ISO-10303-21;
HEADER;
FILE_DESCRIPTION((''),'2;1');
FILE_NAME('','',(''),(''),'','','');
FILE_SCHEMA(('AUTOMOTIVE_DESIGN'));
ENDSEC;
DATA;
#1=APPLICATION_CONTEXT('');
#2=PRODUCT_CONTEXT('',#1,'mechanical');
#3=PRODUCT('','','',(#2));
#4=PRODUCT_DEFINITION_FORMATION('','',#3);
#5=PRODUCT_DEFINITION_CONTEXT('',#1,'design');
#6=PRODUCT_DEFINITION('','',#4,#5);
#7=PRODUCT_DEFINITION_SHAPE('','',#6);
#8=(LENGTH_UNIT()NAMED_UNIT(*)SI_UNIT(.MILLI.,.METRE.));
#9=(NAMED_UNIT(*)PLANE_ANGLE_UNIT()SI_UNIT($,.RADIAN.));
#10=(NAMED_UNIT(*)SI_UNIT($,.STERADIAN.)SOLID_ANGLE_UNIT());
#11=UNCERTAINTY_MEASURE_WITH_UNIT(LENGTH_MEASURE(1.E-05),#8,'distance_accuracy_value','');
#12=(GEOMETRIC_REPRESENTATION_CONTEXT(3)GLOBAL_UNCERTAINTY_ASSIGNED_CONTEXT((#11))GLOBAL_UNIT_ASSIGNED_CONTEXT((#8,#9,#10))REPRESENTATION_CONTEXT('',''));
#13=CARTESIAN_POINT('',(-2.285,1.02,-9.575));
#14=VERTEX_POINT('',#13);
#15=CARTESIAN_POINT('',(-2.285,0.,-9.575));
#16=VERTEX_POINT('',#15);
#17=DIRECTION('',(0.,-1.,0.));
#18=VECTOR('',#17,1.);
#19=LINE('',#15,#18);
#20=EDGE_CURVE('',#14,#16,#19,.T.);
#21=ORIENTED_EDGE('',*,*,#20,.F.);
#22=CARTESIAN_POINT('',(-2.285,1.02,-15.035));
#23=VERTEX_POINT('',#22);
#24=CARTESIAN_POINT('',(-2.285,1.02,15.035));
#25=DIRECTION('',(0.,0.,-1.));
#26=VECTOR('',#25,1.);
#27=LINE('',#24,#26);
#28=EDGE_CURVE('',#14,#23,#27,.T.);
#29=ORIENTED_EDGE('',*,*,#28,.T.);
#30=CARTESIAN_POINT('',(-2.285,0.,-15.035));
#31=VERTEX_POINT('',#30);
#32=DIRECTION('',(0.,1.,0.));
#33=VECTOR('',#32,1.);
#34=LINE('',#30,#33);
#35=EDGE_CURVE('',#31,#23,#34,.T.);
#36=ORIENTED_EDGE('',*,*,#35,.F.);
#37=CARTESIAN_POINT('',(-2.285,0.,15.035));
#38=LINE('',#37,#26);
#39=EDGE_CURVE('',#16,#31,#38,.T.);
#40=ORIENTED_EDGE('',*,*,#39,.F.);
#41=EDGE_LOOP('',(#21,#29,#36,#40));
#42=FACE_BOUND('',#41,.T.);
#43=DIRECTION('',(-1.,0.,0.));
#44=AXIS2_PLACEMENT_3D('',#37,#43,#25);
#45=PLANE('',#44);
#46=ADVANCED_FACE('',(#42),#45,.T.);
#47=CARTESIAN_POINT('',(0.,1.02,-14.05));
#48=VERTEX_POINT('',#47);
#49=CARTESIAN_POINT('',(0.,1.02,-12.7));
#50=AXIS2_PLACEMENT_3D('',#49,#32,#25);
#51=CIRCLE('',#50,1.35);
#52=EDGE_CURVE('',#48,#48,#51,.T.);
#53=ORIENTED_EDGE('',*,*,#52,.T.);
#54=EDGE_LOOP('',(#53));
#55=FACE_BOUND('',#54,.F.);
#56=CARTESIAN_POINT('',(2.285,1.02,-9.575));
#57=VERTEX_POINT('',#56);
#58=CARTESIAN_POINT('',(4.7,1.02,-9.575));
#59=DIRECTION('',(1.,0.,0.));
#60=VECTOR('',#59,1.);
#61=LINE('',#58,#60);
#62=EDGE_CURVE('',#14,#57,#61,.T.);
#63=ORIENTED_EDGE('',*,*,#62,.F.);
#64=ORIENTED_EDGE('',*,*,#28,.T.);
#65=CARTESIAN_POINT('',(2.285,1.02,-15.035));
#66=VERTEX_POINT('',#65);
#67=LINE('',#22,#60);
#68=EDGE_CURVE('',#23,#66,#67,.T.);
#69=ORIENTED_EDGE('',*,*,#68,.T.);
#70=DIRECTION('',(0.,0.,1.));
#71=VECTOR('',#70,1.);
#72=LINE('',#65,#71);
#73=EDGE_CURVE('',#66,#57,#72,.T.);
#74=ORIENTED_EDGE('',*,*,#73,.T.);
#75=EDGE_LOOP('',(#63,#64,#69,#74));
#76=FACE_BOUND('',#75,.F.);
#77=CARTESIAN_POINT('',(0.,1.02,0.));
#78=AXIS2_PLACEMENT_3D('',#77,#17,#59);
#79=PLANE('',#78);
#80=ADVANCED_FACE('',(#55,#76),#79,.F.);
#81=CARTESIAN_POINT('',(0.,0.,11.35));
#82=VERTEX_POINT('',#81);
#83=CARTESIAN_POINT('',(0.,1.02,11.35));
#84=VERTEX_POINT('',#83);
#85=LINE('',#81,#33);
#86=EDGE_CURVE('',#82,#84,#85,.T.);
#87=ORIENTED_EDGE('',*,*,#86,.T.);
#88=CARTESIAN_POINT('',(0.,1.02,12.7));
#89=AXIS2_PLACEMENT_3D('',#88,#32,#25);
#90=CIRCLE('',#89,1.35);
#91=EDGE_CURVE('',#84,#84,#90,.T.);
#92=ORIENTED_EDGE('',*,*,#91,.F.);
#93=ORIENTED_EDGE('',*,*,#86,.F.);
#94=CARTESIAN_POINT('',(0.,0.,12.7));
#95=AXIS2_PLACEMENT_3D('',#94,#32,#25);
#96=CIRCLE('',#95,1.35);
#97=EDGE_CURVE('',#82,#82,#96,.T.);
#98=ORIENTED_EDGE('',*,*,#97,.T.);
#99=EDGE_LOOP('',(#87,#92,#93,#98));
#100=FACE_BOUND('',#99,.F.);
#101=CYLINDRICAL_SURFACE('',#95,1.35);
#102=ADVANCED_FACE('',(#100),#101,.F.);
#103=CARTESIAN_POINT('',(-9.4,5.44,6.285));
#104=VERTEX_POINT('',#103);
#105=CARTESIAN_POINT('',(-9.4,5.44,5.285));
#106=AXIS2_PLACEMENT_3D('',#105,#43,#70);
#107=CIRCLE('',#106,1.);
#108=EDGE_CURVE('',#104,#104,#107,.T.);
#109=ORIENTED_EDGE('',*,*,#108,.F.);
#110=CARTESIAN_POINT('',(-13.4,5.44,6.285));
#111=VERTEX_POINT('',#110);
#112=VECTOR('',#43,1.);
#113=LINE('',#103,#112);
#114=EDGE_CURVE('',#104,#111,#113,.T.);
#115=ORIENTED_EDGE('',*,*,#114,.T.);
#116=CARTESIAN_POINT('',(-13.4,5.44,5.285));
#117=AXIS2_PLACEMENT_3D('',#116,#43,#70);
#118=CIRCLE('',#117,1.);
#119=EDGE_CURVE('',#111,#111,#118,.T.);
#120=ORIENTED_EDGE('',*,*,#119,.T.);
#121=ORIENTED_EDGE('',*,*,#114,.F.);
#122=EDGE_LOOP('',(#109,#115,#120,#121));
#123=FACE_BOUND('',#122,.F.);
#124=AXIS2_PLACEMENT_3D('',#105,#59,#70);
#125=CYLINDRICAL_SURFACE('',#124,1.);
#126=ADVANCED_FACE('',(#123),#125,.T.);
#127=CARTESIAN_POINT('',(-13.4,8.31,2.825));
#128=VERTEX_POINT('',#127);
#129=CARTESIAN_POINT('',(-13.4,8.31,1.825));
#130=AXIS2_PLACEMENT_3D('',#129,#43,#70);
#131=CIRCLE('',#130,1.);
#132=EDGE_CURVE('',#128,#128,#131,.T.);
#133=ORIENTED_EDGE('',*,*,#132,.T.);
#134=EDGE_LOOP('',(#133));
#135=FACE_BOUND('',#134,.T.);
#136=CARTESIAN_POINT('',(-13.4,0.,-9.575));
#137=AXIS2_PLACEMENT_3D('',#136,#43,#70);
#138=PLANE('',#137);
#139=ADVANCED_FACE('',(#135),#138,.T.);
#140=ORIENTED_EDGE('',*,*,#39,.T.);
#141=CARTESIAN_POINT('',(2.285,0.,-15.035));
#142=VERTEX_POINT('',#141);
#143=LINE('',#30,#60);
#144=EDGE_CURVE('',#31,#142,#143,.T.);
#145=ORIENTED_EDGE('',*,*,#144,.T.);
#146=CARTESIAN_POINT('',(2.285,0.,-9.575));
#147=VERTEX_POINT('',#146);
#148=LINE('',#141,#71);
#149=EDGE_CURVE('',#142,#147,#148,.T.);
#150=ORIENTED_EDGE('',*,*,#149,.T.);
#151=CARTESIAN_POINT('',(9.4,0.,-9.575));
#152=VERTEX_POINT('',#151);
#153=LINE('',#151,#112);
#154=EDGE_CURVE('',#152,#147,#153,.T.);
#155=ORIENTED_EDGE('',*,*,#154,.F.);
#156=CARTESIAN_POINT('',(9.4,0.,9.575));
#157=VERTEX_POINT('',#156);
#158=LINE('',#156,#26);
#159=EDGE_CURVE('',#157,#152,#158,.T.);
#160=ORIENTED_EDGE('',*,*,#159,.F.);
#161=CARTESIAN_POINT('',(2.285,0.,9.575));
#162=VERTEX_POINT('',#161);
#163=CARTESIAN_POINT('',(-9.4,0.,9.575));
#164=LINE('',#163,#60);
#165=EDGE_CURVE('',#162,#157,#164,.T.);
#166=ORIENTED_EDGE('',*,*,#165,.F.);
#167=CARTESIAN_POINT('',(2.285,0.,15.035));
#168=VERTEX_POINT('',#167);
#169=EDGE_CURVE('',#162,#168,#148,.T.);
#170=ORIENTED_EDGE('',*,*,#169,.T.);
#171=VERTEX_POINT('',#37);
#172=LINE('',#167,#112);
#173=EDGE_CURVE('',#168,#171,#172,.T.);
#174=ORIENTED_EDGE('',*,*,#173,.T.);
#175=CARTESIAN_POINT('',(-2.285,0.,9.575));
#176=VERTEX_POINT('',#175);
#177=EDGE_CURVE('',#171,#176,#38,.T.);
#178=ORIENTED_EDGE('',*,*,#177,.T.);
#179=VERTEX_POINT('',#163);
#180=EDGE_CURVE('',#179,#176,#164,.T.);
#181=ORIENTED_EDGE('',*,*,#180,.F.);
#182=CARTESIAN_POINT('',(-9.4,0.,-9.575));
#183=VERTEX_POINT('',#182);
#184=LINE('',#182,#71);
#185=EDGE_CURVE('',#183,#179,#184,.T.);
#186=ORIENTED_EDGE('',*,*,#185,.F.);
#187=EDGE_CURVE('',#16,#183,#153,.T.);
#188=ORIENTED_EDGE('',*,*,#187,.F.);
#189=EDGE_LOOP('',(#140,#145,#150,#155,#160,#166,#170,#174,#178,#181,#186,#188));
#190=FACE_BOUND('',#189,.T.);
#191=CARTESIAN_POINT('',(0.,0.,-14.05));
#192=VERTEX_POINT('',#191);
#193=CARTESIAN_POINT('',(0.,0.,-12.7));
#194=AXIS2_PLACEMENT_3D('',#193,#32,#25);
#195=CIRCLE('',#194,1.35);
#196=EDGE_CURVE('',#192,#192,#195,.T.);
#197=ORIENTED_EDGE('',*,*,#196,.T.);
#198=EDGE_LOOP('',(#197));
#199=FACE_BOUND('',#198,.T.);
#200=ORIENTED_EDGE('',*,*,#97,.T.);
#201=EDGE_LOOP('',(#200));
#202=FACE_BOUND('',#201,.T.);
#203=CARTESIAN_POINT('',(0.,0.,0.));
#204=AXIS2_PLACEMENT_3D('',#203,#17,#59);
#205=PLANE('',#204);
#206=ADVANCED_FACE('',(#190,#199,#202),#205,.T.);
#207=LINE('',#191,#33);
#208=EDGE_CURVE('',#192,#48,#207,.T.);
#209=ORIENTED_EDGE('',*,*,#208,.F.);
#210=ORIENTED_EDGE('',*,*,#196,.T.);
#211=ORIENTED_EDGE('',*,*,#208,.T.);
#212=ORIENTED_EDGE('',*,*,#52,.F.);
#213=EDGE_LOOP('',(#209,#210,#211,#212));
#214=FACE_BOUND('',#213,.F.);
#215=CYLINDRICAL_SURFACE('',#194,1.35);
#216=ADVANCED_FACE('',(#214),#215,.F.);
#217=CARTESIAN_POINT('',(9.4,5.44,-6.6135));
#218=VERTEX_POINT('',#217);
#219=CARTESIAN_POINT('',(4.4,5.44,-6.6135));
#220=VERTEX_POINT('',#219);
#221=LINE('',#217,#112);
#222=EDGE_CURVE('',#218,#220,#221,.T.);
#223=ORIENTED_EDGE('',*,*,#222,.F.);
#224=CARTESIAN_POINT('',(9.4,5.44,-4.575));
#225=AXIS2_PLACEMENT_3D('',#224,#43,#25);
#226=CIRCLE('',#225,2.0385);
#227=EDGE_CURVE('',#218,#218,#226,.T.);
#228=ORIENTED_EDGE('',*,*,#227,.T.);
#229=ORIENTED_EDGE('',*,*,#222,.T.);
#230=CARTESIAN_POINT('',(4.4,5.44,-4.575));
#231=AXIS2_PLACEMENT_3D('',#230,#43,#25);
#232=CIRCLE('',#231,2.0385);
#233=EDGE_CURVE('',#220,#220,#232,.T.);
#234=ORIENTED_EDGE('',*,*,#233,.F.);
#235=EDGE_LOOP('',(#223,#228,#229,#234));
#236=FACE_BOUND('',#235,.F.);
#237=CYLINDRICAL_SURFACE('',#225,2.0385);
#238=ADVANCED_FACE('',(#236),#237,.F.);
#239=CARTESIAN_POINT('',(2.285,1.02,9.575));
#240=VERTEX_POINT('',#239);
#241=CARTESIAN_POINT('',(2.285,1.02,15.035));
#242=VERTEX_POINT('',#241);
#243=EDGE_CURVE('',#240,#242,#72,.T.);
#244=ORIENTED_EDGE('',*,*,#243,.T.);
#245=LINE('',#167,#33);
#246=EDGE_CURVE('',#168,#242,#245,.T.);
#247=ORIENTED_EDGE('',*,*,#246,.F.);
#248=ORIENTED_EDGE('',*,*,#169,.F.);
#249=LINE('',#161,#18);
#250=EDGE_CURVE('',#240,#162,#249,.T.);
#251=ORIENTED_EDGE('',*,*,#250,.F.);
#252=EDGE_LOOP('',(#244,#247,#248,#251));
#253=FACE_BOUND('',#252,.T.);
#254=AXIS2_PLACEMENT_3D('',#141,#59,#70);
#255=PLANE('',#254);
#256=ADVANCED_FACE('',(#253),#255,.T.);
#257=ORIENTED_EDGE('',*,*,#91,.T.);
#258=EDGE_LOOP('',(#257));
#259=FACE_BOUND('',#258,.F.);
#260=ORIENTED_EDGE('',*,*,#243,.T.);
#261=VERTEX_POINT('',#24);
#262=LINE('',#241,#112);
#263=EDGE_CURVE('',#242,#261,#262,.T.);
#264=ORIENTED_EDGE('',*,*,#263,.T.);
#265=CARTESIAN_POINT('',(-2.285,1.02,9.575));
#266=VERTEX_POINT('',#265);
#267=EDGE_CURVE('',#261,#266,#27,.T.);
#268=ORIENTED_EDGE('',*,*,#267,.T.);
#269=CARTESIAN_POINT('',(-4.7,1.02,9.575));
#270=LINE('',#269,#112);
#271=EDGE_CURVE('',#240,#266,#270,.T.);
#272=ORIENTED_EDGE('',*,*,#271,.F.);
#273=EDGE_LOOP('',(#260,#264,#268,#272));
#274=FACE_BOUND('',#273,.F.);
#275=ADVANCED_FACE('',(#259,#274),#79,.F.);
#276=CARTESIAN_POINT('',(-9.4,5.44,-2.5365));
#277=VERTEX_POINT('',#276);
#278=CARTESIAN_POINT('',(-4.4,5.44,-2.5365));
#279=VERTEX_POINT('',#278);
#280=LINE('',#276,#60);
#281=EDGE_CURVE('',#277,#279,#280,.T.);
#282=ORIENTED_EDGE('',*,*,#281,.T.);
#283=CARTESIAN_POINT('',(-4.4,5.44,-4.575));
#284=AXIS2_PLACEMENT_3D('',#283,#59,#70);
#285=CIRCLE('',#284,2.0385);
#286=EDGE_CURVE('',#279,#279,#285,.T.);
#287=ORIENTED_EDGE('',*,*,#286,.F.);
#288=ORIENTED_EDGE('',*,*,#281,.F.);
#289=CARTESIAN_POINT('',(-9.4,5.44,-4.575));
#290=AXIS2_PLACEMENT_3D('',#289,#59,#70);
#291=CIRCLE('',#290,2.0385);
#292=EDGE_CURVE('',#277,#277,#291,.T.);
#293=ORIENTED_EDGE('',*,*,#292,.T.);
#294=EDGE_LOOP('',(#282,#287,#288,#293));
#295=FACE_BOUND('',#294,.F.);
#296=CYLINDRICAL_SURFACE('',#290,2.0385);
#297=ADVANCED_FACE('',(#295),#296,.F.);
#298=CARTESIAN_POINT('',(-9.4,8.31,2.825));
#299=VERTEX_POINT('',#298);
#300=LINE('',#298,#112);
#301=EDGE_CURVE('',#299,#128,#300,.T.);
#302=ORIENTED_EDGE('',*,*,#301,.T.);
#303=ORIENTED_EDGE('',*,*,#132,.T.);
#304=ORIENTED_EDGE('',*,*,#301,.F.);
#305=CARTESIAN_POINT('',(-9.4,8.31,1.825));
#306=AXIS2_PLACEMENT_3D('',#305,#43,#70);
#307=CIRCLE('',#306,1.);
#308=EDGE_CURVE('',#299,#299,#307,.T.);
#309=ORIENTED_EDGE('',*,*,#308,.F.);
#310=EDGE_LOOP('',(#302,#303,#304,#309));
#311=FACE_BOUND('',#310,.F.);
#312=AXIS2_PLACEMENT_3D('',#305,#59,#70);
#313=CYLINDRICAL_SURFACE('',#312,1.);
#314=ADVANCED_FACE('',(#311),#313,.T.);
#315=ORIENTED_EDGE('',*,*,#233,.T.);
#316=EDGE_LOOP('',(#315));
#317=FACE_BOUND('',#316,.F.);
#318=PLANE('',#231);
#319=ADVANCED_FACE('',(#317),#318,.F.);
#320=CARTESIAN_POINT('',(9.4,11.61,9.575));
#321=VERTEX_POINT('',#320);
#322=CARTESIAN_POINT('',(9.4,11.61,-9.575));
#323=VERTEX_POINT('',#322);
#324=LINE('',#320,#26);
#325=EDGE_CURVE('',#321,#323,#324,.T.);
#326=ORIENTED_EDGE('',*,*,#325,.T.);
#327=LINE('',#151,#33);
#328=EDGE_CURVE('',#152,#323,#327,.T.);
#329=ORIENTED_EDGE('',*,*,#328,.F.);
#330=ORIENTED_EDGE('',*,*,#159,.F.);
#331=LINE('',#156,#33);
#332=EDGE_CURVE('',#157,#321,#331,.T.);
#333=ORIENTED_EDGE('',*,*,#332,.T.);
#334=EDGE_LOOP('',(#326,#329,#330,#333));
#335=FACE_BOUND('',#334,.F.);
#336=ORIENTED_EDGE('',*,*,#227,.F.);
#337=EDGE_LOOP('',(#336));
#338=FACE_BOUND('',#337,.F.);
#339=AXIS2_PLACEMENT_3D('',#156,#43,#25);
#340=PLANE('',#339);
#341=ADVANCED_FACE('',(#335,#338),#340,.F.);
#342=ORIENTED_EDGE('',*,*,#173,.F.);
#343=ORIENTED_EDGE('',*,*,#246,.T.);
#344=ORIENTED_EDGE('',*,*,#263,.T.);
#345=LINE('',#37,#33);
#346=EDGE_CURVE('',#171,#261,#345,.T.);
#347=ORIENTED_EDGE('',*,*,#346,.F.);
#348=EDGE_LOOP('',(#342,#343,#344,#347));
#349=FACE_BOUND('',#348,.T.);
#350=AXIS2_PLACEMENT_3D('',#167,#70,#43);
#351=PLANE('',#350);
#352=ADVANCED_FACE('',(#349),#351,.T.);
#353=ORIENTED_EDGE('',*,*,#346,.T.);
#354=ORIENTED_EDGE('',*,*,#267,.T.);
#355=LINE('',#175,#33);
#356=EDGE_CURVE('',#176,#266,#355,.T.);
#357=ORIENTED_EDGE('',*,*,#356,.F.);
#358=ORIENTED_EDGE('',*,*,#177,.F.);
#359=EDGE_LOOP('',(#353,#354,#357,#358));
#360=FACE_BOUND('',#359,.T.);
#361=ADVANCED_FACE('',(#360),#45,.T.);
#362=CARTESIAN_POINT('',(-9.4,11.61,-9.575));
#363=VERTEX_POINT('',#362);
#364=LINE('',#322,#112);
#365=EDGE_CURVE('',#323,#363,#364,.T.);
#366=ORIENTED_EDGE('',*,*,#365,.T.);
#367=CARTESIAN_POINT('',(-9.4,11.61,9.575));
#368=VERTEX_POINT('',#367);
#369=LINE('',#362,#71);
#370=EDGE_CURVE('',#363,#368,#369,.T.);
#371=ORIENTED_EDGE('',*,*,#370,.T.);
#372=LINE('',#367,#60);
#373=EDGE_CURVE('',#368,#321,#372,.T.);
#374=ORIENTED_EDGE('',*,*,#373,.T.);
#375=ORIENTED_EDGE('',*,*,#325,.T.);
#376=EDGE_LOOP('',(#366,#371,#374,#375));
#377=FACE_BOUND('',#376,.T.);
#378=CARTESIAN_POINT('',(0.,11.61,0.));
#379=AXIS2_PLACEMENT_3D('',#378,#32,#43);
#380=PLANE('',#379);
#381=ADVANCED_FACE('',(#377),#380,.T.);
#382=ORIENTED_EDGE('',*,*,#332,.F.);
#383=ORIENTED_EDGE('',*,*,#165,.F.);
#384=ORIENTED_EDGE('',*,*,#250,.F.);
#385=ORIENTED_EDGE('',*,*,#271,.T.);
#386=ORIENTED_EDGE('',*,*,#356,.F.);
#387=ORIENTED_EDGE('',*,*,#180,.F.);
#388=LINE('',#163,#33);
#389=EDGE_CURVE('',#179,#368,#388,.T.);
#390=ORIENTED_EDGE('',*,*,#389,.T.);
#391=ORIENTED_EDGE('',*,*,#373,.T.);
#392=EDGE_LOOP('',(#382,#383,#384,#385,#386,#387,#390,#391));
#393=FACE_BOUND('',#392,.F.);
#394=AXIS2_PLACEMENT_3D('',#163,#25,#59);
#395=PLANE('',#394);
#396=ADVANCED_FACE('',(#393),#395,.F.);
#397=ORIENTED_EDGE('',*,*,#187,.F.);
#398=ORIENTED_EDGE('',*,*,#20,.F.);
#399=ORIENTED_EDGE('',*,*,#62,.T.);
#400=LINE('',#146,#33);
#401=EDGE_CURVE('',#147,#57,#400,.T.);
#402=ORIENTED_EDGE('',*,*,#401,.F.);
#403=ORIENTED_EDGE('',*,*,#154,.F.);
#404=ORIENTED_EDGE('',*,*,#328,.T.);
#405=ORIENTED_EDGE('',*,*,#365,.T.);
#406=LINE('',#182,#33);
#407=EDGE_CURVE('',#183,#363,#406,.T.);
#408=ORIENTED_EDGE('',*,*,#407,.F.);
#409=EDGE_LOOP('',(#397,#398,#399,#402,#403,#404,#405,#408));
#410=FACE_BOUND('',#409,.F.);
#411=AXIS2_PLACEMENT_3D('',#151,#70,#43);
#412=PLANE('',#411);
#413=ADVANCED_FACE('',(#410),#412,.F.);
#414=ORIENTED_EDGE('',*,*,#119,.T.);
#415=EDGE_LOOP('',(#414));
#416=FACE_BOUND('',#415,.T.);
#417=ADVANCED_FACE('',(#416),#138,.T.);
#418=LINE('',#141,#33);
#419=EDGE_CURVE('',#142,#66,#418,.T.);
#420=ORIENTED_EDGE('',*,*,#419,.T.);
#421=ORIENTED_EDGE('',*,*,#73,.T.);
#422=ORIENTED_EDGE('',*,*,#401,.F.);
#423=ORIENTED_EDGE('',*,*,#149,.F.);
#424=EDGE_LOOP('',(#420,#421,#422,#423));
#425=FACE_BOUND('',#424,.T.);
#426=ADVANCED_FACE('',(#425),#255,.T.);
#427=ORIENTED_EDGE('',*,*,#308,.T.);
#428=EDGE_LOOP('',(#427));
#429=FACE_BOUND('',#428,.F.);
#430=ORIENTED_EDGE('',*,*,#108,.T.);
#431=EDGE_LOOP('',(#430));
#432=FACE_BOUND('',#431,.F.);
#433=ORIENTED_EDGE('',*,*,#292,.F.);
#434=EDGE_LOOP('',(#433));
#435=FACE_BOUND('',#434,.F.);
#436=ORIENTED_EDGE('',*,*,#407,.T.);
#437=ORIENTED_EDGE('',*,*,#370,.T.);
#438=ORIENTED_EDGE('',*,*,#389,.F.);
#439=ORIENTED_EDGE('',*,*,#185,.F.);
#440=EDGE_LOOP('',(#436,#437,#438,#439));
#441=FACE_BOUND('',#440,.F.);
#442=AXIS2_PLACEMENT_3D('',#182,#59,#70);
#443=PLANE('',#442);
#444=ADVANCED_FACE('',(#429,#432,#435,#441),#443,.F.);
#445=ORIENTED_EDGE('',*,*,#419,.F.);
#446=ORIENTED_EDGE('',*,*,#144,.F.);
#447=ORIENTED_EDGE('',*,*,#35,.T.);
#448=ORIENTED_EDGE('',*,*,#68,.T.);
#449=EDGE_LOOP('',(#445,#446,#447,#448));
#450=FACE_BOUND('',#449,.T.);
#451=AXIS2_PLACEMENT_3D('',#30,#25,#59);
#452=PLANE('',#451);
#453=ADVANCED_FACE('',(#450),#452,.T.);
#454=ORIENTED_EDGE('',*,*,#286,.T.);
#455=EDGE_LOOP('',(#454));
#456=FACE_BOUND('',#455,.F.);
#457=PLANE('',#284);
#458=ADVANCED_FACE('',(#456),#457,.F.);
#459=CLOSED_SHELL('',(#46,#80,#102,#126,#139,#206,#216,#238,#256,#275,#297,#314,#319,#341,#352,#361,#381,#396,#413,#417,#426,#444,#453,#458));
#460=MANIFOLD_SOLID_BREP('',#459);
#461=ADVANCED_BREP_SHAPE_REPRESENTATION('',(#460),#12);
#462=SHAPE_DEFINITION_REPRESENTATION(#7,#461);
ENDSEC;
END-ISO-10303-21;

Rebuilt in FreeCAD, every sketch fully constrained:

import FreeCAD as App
import Part
import Sketcher

V = App.Vector
Q = App.Units.Quantity


def add_polygon(sketch, points):
    """Adds a closed chain of lines whose ends are joined by coincident constraints."""
    first, n = sketch.GeometryCount, len(points)
    for a, b in zip(points, points[1:] + points[:1]):
        sketch.addGeometry(Part.LineSegment(App.Vector(*a, 0), App.Vector(*b, 0)), False)
    for i in range(n):
        sketch.addConstraint(Sketcher.Constraint("Coincident", first + i, 2, first + (i + 1) % n, 1))

doc = App.newDocument("Part")
body = doc.addObject("PartDesign::Body", "Body")

sketch1 = body.newObject("Sketcher::SketchObject", "Sketch")
sketch1.AttachmentSupport = (doc.getObject("XZ_Plane"), [""])
sketch1.MapMode = "FlatFace"
add_polygon(sketch1, [(-9, -10), (-9, 10), (9, 10), (9, -10)])
sketch1.addConstraint(Sketcher.Constraint("Vertical", 0))
sketch1.addConstraint(Sketcher.Constraint("Horizontal", 1))
sketch1.addConstraint(Sketcher.Constraint("Vertical", 2))
sketch1.addConstraint(Sketcher.Constraint("Horizontal", 3))
sketch1.addConstraint(Sketcher.Constraint("Symmetric", 0, 2, 2, 2, -1, 1))
sketch1.addConstraint(Sketcher.Constraint("DistanceX", 1, 1, 1, 2, Q("18.8 mm")))
sketch1.addConstraint(Sketcher.Constraint("DistanceY", 0, 1, 0, 2, Q("19.15 mm")))
pad1 = body.newObject("PartDesign::Pad", "Pad")
pad1.Profile = sketch1
pad1.Length = 11.61
pad1.Reversed = True

sketch2 = body.newObject("Sketcher::SketchObject", "Sketch001")
sketch2.AttachmentSupport = (doc.getObject("YZ_Plane"), [""])
sketch2.MapMode = "FlatFace"
sketch2.AttachmentOffset = App.Placement(V(0, 0, 9.4), App.Rotation())
sketch2.addGeometry(Part.Circle(V(5.4, -4.6, 0), V(0, 0, 1), 2), False)
sketch2.addConstraint(Sketcher.Constraint("Diameter", 0, Q("4.077 mm")))
sketch2.addConstraint(Sketcher.Constraint("DistanceX", -1, 1, 0, 3, Q("5.44 mm")))
sketch2.addConstraint(Sketcher.Constraint("DistanceY", 0, 3, -1, 1, Q("4.575 mm")))
doc.recompute()
hole = body.newObject("PartDesign::Hole", "Hole")
hole.Profile = sketch2
hole.ThreadType = "None"
hole.Diameter = 4.077
hole.DepthType = "Dimension"
hole.Depth = 5
hole.DrillPoint = "Flat"

sketch3 = body.newObject("Sketcher::SketchObject", "Sketch002")
sketch3.AttachmentSupport = (doc.getObject("YZ_Plane"), [""])
sketch3.MapMode = "FlatFace"
sketch3.AttachmentOffset = App.Placement(V(0, 0, -9.4), App.Rotation())
sketch3.addGeometry(Part.Circle(V(5.4, -4.6, 0), V(0, 0, 1), 2), False)
sketch3.addConstraint(Sketcher.Constraint("Diameter", 0, Q("4.077 mm")))
sketch3.addConstraint(Sketcher.Constraint("DistanceX", -1, 1, 0, 3, Q("5.44 mm")))
sketch3.addConstraint(Sketcher.Constraint("DistanceY", 0, 3, -1, 1, Q("4.575 mm")))
doc.recompute()
hole2 = body.newObject("PartDesign::Hole", "Hole001")
hole2.Profile = sketch3
hole2.ThreadType = "None"
hole2.Diameter = 4.077
hole2.DepthType = "Dimension"
hole2.Depth = 5
hole2.DrillPoint = "Flat"
hole2.Reversed = True

sketch4 = body.newObject("Sketcher::SketchObject", "Sketch003")
sketch4.AttachmentSupport = (doc.getObject("XZ_Plane"), [""])
sketch4.MapMode = "FlatFace"
add_polygon(sketch4, [(2.3, -15), (2.3, 15), (-2.3, 15), (-2.3, -15)])
sketch4.addConstraint(Sketcher.Constraint("Vertical", 0))
sketch4.addConstraint(Sketcher.Constraint("Horizontal", 1))
sketch4.addConstraint(Sketcher.Constraint("Vertical", 2))
sketch4.addConstraint(Sketcher.Constraint("Horizontal", 3))
sketch4.addConstraint(Sketcher.Constraint("Symmetric", 0, 2, 2, 2, -1, 1))
sketch4.addConstraint(Sketcher.Constraint("DistanceX", 1, 2, 1, 1, Q("4.57 mm")))
sketch4.addConstraint(Sketcher.Constraint("DistanceY", 0, 1, 0, 2, Q("30.07 mm")))
pad2 = body.newObject("PartDesign::Pad", "Pad001")
pad2.Profile = sketch4
pad2.Length = 1.02
pad2.Reversed = True

sketch5 = body.newObject("Sketcher::SketchObject", "Sketch004")
sketch5.AttachmentSupport = (doc.getObject("XZ_Plane"), [""])
sketch5.MapMode = "FlatFace"
sketch5.addGeometry(Part.Circle(V(0, -12.7, 0), V(0, 0, 1), 1.4), False)
sketch5.addGeometry(Part.Circle(V(0, 12.7, 0), V(0, 0, 1), 1.4), False)
sketch5.addConstraint(Sketcher.Constraint("Equal", 0, 1))
sketch5.addConstraint(Sketcher.Constraint("Symmetric", 0, 3, 1, 3, -1, 1))
sketch5.addConstraint(Sketcher.Constraint("PointOnObject", 0, 3, -2))
sketch5.addConstraint(Sketcher.Constraint("Diameter", 0, Q("2.7 mm")))
sketch5.addConstraint(Sketcher.Constraint("DistanceY", 0, 3, -1, 1, Q("12.7 mm")))
doc.recompute()
hole3 = body.newObject("PartDesign::Hole", "Hole002")
hole3.Profile = sketch5
hole3.ThreadType = "None"
hole3.Diameter = 2.7
hole3.DepthType = "ThroughAll"

sketch6 = body.newObject("Sketcher::SketchObject", "Sketch005")
sketch6.AttachmentSupport = (doc.getObject("YZ_Plane"), [""])
sketch6.MapMode = "FlatFace"
sketch6.AttachmentOffset = App.Placement(V(0, 0, -9.4), App.Rotation())
sketch6.addGeometry(Part.Circle(V(8.3, 1.8, 0), V(0, 0, 1), 1), False)
sketch6.addGeometry(Part.Circle(V(5.4, 5.3, 0), V(0, 0, 1), 1), False)
sketch6.addConstraint(Sketcher.Constraint("Equal", 0, 1))
sketch6.addConstraint(Sketcher.Constraint("Diameter", 0, Q("2 mm")))
sketch6.addConstraint(Sketcher.Constraint("DistanceX", -1, 1, 0, 3, Q("8.31 mm")))
sketch6.addConstraint(Sketcher.Constraint("DistanceX", -1, 1, 1, 3, Q("5.44 mm")))
sketch6.addConstraint(Sketcher.Constraint("DistanceY", 0, 3, 1, 3, Q("3.46 mm")))
sketch6.addConstraint(Sketcher.Constraint("DistanceY", -1, 1, 0, 3, Q("1.825 mm")))
pad3 = body.newObject("PartDesign::Pad", "Pad002")
pad3.Profile = sketch6
pad3.Length = 4
pad3.Reversed = True

doc.recompute()
